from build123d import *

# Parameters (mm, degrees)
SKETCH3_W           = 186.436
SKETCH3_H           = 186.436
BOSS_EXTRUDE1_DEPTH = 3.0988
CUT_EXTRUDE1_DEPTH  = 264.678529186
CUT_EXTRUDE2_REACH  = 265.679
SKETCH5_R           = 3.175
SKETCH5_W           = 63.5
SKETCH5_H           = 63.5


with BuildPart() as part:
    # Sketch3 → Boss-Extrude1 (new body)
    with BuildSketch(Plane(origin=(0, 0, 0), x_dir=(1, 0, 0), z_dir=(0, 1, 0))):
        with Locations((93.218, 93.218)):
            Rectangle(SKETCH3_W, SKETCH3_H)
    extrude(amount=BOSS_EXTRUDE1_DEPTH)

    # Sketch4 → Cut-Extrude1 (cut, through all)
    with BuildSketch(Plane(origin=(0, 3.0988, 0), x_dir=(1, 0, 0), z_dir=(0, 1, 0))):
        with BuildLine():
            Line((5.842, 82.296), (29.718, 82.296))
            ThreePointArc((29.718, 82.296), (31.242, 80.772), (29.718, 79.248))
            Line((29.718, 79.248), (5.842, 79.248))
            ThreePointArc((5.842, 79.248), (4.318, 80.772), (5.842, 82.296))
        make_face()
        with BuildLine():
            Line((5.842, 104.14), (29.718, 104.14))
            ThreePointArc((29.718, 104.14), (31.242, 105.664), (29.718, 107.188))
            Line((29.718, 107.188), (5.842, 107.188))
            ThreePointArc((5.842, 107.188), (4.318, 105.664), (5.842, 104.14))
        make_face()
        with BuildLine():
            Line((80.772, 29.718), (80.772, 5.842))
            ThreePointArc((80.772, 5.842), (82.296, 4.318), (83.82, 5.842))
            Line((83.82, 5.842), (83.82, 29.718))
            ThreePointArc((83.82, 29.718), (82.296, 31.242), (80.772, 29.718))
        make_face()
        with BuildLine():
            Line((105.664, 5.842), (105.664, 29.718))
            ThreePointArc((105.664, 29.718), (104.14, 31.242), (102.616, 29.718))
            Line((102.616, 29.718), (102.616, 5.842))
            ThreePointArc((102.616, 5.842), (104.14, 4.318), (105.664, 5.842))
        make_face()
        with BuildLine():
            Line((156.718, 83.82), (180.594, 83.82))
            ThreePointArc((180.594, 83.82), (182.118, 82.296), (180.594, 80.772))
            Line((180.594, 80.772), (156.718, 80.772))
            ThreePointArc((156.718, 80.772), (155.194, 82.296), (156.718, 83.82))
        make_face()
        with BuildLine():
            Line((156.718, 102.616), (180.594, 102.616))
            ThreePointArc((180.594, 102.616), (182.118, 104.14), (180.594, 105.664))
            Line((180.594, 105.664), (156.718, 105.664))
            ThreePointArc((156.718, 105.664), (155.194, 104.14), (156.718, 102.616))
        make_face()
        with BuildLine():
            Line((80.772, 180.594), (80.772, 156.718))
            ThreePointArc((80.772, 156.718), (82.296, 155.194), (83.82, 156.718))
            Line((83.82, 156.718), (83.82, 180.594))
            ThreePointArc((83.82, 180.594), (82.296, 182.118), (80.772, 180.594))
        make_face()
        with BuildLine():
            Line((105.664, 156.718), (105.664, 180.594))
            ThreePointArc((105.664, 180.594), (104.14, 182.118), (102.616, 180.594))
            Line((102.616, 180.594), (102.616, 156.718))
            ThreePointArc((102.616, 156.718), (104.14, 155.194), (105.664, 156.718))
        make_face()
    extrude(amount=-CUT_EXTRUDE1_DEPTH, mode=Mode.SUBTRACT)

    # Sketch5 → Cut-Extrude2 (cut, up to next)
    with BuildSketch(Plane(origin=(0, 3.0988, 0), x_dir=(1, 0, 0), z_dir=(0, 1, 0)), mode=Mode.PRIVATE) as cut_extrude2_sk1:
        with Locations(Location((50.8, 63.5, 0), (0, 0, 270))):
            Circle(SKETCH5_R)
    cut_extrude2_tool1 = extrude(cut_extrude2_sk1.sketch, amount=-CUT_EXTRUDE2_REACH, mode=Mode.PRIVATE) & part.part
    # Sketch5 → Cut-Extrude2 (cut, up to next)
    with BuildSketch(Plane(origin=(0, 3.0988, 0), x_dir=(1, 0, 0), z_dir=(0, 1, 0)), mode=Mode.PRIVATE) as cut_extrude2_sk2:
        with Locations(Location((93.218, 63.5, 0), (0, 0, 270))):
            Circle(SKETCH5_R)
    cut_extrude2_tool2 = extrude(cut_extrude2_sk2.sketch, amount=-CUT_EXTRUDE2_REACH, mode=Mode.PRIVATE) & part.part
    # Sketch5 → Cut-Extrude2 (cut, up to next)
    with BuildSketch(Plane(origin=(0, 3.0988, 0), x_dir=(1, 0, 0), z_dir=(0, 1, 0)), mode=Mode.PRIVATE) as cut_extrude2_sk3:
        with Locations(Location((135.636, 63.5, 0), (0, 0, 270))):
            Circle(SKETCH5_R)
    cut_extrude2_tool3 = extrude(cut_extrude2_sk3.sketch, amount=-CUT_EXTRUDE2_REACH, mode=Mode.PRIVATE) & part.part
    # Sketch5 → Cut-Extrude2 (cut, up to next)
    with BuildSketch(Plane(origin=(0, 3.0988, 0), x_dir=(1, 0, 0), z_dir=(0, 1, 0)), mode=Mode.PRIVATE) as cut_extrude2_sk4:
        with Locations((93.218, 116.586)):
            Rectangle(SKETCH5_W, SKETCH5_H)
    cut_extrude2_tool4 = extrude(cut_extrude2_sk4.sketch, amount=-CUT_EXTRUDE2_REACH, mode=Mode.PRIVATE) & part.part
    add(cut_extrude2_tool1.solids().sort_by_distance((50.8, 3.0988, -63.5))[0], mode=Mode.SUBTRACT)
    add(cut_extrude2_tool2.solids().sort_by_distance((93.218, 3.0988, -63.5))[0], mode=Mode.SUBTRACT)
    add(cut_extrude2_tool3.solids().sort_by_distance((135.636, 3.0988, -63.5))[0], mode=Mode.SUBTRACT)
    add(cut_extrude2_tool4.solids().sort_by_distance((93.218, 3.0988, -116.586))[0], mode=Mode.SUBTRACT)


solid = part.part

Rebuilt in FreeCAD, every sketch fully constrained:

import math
import FreeCAD as App
import Part
import Sketcher
from FreeCAD import Vector
Q = App.Units.Quantity

doc = App.newDocument("Part")
body = doc.addObject("PartDesign::Body", "Body")

# Sketch on XZ plane
sketch1 = body.newObject("Sketcher::SketchObject", "Sketch")
sketch1.AttachmentSupport = (doc.getObject("XZ_Plane"), [""])
sketch1.MapMode = "FlatFace"
sketch1.addGeometry(Part.LineSegment(Vector(0, -186, 0), Vector(0, 0, 0)), False)
sketch1.addGeometry(Part.LineSegment(Vector(0, 0, 0), Vector(186, 0, 0)), False)
sketch1.addGeometry(Part.LineSegment(Vector(186, 0, 0), Vector(186, -186, 0)), False)
sketch1.addGeometry(Part.LineSegment(Vector(186, -186, 0), Vector(0, -186, 0)), False)
sketch1.addConstraint(Sketcher.Constraint("Coincident", 0, 2, 1, 1))
sketch1.addConstraint(Sketcher.Constraint("Coincident", 1, 2, 2, 1))
sketch1.addConstraint(Sketcher.Constraint("Coincident", 2, 2, 3, 1))
sketch1.addConstraint(Sketcher.Constraint("Coincident", 3, 2, 0, 1))
sketch1.addConstraint(Sketcher.Constraint("Vertical", 0))
sketch1.addConstraint(Sketcher.Constraint("Horizontal", 1))
sketch1.addConstraint(Sketcher.Constraint("Vertical", 2))
sketch1.addConstraint(Sketcher.Constraint("Horizontal", 3))
sketch1.addConstraint(Sketcher.Constraint("Coincident", 0, 2, -1, 1))
sketch1.addConstraint(Sketcher.Constraint("Equal", 3, 0))
sketch1.addConstraint(Sketcher.Constraint("DistanceX", 1, 1, 1, 2, Q("7.34 in")))
pad1 = body.newObject("PartDesign::Pad", "Pad")
pad1.Profile = sketch1
pad1.Length = Q("0.122 in")
pad1.Reversed = True

# Sketch on XZ plane
sketch2 = body.newObject("Sketcher::SketchObject", "Sketch001")
sketch2.AttachmentSupport = (doc.getObject("XZ_Plane"), [""])
sketch2.MapMode = "FlatFace"
sketch2.AttachmentOffset = App.Placement(Vector(0, 0, -0.122 * 25.4), App.Rotation())
sketch2.addGeometry(Part.LineSegment(Vector(29.7, -82.3, 0), Vector(5.8, -82.3, 0)), False)
sketch2.addGeometry(Part.ArcOfCircle(Part.Circle(Vector(5.8, -80.8, 0), Vector(0, 0, 1), 1.5), math.radians(90), math.radians(270)), False)
sketch2.addGeometry(Part.LineSegment(Vector(5.8, -79.2, 0), Vector(29.7, -79.2, 0)), False)
sketch2.addGeometry(Part.ArcOfCircle(Part.Circle(Vector(29.7, -80.8, 0), Vector(0, 0, 1), 1.5), math.radians(-90), math.radians(90)), False)
sketch2.addGeometry(Part.LineSegment(Vector(5.8, -104.1, 0), Vector(29.7, -104.1, 0)), False)
sketch2.addGeometry(Part.ArcOfCircle(Part.Circle(Vector(29.7, -105.7, 0), Vector(0, 0, 1), 1.5), math.radians(-90), math.radians(90)), False)
sketch2.addGeometry(Part.LineSegment(Vector(29.7, -107.2, 0), Vector(5.8, -107.2, 0)), False)
sketch2.addGeometry(Part.ArcOfCircle(Part.Circle(Vector(5.8, -105.7, 0), Vector(0, 0, 1), 1.5), math.radians(90), math.radians(270)), False)
sketch2.addGeometry(Part.LineSegment(Vector(80.8, -29.7, 0), Vector(80.8, -5.8, 0)), False)
sketch2.addGeometry(Part.ArcOfCircle(Part.Circle(Vector(82.3, -5.8, 0), Vector(0, 0, 1), 1.5), math.radians(0), math.radians(180)), False)
sketch2.addGeometry(Part.LineSegment(Vector(83.8, -5.8, 0), Vector(83.8, -29.7, 0)), False)
sketch2.addGeometry(Part.ArcOfCircle(Part.Circle(Vector(82.3, -29.7, 0), Vector(0, 0, 1), 1.5), math.radians(180), math.radians(360)), False)
sketch2.addGeometry(Part.LineSegment(Vector(105.7, -5.8, 0), Vector(105.7, -29.7, 0)), False)
sketch2.addGeometry(Part.ArcOfCircle(Part.Circle(Vector(104.1, -29.7, 0), Vector(0, 0, 1), 1.5), math.radians(180), math.radians(360)), False)
sketch2.addGeometry(Part.LineSegment(Vector(102.6, -29.7, 0), Vector(102.6, -5.8, 0)), False)
sketch2.addGeometry(Part.ArcOfCircle(Part.Circle(Vector(104.1, -5.8, 0), Vector(0, 0, 1), 1.5), math.radians(0), math.radians(180)), False)
sketch2.addGeometry(Part.LineSegment(Vector(180.6, -83.8, 0), Vector(156.7, -83.8, 0)), False)
sketch2.addGeometry(Part.ArcOfCircle(Part.Circle(Vector(156.7, -82.3, 0), Vector(0, 0, 1), 1.5), math.radians(90), math.radians(270)), False)
sketch2.addGeometry(Part.LineSegment(Vector(156.7, -80.8, 0), Vector(180.6, -80.8, 0)), False)
sketch2.addGeometry(Part.ArcOfCircle(Part.Circle(Vector(180.6, -82.3, 0), Vector(0, 0, 1), 1.5), math.radians(-90), math.radians(90)), False)
sketch2.addGeometry(Part.LineSegment(Vector(156.7, -102.6, 0), Vector(180.6, -102.6, 0)), False)
sketch2.addGeometry(Part.ArcOfCircle(Part.Circle(Vector(180.6, -104.1, 0), Vector(0, 0, 1), 1.5), math.radians(-90), math.radians(90)), False)
sketch2.addGeometry(Part.LineSegment(Vector(180.6, -105.7, 0), Vector(156.7, -105.7, 0)), False)
sketch2.addGeometry(Part.ArcOfCircle(Part.Circle(Vector(156.7, -104.1, 0), Vector(0, 0, 1), 1.5), math.radians(90), math.radians(270)), False)
sketch2.addGeometry(Part.LineSegment(Vector(80.8, -180.6, 0), Vector(80.8, -156.7, 0)), False)
sketch2.addGeometry(Part.ArcOfCircle(Part.Circle(Vector(82.3, -156.7, 0), Vector(0, 0, 1), 1.5), math.radians(0), math.radians(180)), False)
sketch2.addGeometry(Part.LineSegment(Vector(83.8, -156.7, 0), Vector(83.8, -180.6, 0)), False)
sketch2.addGeometry(Part.ArcOfCircle(Part.Circle(Vector(82.3, -180.6, 0), Vector(0, 0, 1), 1.5), math.radians(180), math.radians(360)), False)
sketch2.addGeometry(Part.LineSegment(Vector(105.7, -156.7, 0), Vector(105.7, -180.6, 0)), False)
sketch2.addGeometry(Part.ArcOfCircle(Part.Circle(Vector(104.1, -180.6, 0), Vector(0, 0, 1), 1.5), math.radians(180), math.radians(360)), False)
sketch2.addGeometry(Part.LineSegment(Vector(102.6, -180.6, 0), Vector(102.6, -156.7, 0)), False)
sketch2.addGeometry(Part.ArcOfCircle(Part.Circle(Vector(104.1, -156.7, 0), Vector(0, 0, 1), 1.5), math.radians(0), math.radians(180)), False)
sketch2.addConstraint(Sketcher.Constraint("Tangent", 0, 2, 1, 2))
sketch2.addConstraint(Sketcher.Constraint("Tangent", 1, 1, 2, 1))
sketch2.addConstraint(Sketcher.Constraint("Tangent", 2, 2, 3, 2))
sketch2.addConstraint(Sketcher.Constraint("Tangent", 3, 1, 0, 1))
sketch2.addConstraint(Sketcher.Constraint("Tangent", 4, 2, 5, 2))
sketch2.addConstraint(Sketcher.Constraint("Tangent", 5, 1, 6, 1))
sketch2.addConstraint(Sketcher.Constraint("Tangent", 6, 2, 7, 2))
sketch2.addConstraint(Sketcher.Constraint("Tangent", 7, 1, 4, 1))
sketch2.addConstraint(Sketcher.Constraint("Tangent", 8, 2, 9, 2))
sketch2.addConstraint(Sketcher.Constraint("Tangent", 9, 1, 10, 1))
sketch2.addConstraint(Sketcher.Constraint("Tangent", 10, 2, 11, 2))
sketch2.addConstraint(Sketcher.Constraint("Tangent", 11, 1, 8, 1))
sketch2.addConstraint(Sketcher.Constraint("Tangent", 12, 2, 13, 2))
sketch2.addConstraint(Sketcher.Constraint("Tangent", 13, 1, 14, 1))
sketch2.addConstraint(Sketcher.Constraint("Tangent", 14, 2, 15, 2))
sketch2.addConstraint(Sketcher.Constraint("Tangent", 15, 1, 12, 1))
sketch2.addConstraint(Sketcher.Constraint("Tangent", 16, 2, 17, 2))
sketch2.addConstraint(Sketcher.Constraint("Tangent", 17, 1, 18, 1))
sketch2.addConstraint(Sketcher.Constraint("Tangent", 18, 2, 19, 2))
sketch2.addConstraint(Sketcher.Constraint("Tangent", 19, 1, 16, 1))
sketch2.addConstraint(Sketcher.Constraint("Tangent", 20, 2, 21, 2))
sketch2.addConstraint(Sketcher.Constraint("Tangent", 21, 1, 22, 1))
sketch2.addConstraint(Sketcher.Constraint("Tangent", 22, 2, 23, 2))
sketch2.addConstraint(Sketcher.Constraint("Tangent", 23, 1, 20, 1))
sketch2.addConstraint(Sketcher.Constraint("Tangent", 24, 2, 25, 2))
sketch2.addConstraint(Sketcher.Constraint("Tangent", 25, 1, 26, 1))
sketch2.addConstraint(Sketcher.Constraint("Tangent", 26, 2, 27, 2))
sketch2.addConstraint(Sketcher.Constraint("Tangent", 27, 1, 24, 1))
sketch2.addConstraint(Sketcher.Constraint("Tangent", 28, 2, 29, 2))
sketch2.addConstraint(Sketcher.Constraint("Tangent", 29, 1, 30, 1))
sketch2.addConstraint(Sketcher.Constraint("Tangent", 30, 2, 31, 2))
sketch2.addConstraint(Sketcher.Constraint("Tangent", 31, 1, 28, 1))
sketch2.addConstraint(Sketcher.Constraint("Horizontal", 0))
sketch2.addConstraint(Sketcher.Constraint("Horizontal", 2))
sketch2.addConstraint(Sketcher.Constraint("Horizontal", 4))
sketch2.addConstraint(Sketcher.Constraint("Horizontal", 6))
sketch2.addConstraint(Sketcher.Constraint("Vertical", 8))
sketch2.addConstraint(Sketcher.Constraint("Vertical", 10))
sketch2.addConstraint(Sketcher.Constraint("Vertical", 12))
sketch2.addConstraint(Sketcher.Constraint("Vertical", 14))
sketch2.addConstraint(Sketcher.Constraint("Horizontal", 16))
sketch2.addConstraint(Sketcher.Constraint("Horizontal", 18))
sketch2.addConstraint(Sketcher.Constraint("Horizontal", 20))
sketch2.addConstraint(Sketcher.Constraint("Horizontal", 22))
sketch2.addConstraint(Sketcher.Constraint("Vertical", 24))
sketch2.addConstraint(Sketcher.Constraint("Vertical", 26))
sketch2.addConstraint(Sketcher.Constraint("Vertical", 28))
sketch2.addConstraint(Sketcher.Constraint("Vertical", 30))
sketch2.addConstraint(Sketcher.Constraint("Equal", 3, 5))
sketch2.addConstraint(Sketcher.Constraint("Equal", 7, 9))
sketch2.addConstraint(Sketcher.Constraint("Equal", 11, 13))
sketch2.addConstraint(Sketcher.Constraint("Equal", 15, 17))
sketch2.addConstraint(Sketcher.Constraint("Equal", 19, 21))
sketch2.addConstraint(Sketcher.Constraint("Equal", 23, 25))
sketch2.addConstraint(Sketcher.Constraint("Equal", 27, 29))
sketch2.addConstraint(Sketcher.Constraint("Horizontal", 11, 3, 13, 3))
sketch2.addConstraint(Sketcher.Constraint("Horizontal", 9, 3, 15, 3))
sketch2.addConstraint(Sketcher.Constraint("Horizontal", 27, 3, 29, 3))
sketch2.addConstraint(Sketcher.Constraint("Horizontal", 25, 3, 31, 3))
sketch2.addConstraint(Sketcher.Constraint("Horizontal", 19, 3, 0, 2))
sketch2.addConstraint(Sketcher.Constraint("Horizontal", 23, 3, 4, 2))
sketch2.addConstraint(Sketcher.Constraint("Vertical", 3, 3, 5, 3))
sketch2.addConstraint(Sketcher.Constraint("Vertical", 1, 3, 7, 3))
sketch2.addConstraint(Sketcher.Constraint("Vertical", 19, 3, 21, 3))
sketch2.addConstraint(Sketcher.Constraint("Vertical", 17, 3, 23, 3))
sketch2.addConstraint(Sketcher.Constraint("Vertical", 11, 3, 25, 3))
sketch2.addConstraint(Sketcher.Constraint("Vertical", 15, 3, 29, 3))
sketch2.addConstraint(Sketcher.Constraint("Equal", 6, 16))
sketch2.addConstraint(Sketcher.Constraint("Equal", 22, 8))
sketch2.addConstraint(Sketcher.Constraint("Equal", 14, 24))
sketch2.addConstraint(Sketcher.Constraint("Radius", 1, Q("0.06 in")))
sketch2.addConstraint(Sketcher.Constraint("DistanceX", 3, 3, 17, 3, Q("5 in")))
sketch2.addConstraint(Sketcher.Constraint("DistanceX", 0, 2, 0, 1, Q("0.94 in")))
sketch2.addConstraint(Sketcher.Constraint("DistanceX", -1, 1, 13, 3, Q("4.1 in")))
sketch2.addConstraint(Sketcher.Constraint("DistanceY", 21, 3, -1, 1, Q("4.1 in")))
sketch2.addConstraint(Sketcher.Constraint("DistanceX", -1, 1, 9, 1, Q("3.3 in")))
sketch2.addConstraint(Sketcher.Constraint("DistanceY", 16, 2, -1, 1, Q("3.3 in")))
sketch2.addConstraint(Sketcher.Constraint("DistanceX", -1, 1, 1, 3, Q("0.23 in")))
sketch2.addConstraint(Sketcher.Constraint("DistanceY", 9, 3, -1, 1, Q("0.23 in")))
sketch2.addConstraint(Sketcher.Constraint("DistanceY", 25, 3, -1, 1, Q("6.17 in")))
pocket1 = body.newObject("PartDesign::Pocket", "Pocket")
pocket1.Profile = sketch2
pocket1.Type = "ThroughAll"
pocket1.Reversed = True

# Sketch on XZ plane
sketch3 = body.newObject("Sketcher::SketchObject", "Sketch002")
sketch3.AttachmentSupport = (doc.getObject("XZ_Plane"), [""])
sketch3.MapMode = "FlatFace"
sketch3.AttachmentOffset = App.Placement(Vector(0, 0, -0.122 * 25.4), App.Rotation())
sketch3.addGeometry(Part.Circle(Vector(50.8, -63.5, 0), Vector(0, 0, 1), 3.2), False)
sketch3.addConstraint(Sketcher.Constraint("Diameter", 0, Q("0.25 in")))
sketch3.addConstraint(Sketcher.Constraint("DistanceX", -1, 1, 0, 3, Q("2 in")))
sketch3.addConstraint(Sketcher.Constraint("DistanceY", 0, 3, -1, 1, Q("2.5 in")))
pocket2 = body.newObject("PartDesign::Pocket", "Pocket001")
pocket2.Profile = sketch3
pocket2.Type = "UpToFirst"
pocket2.Reversed = True

# Sketch on XZ plane
sketch4 = body.newObject("Sketcher::SketchObject", "Sketch003")
sketch4.AttachmentSupport = (doc.getObject("XZ_Plane"), [""])
sketch4.MapMode = "FlatFace"
sketch4.AttachmentOffset = App.Placement(Vector(0, 0, -0.122 * 25.4), App.Rotation())
sketch4.addGeometry(Part.Circle(Vector(93.2, -63.5, 0), Vector(0, 0, 1), 3.2), False)
sketch4.addConstraint(Sketcher.Constraint("Diameter", 0, Q("0.25 in")))
sketch4.addConstraint(Sketcher.Constraint("DistanceY", 0, 3, -1, 1, Q("2.5 in")))
sketch4.addConstraint(Sketcher.Constraint("DistanceX", -1, 1, 0, 3, Q("3.67 in")))
pocket3 = body.newObject("PartDesign::Pocket", "Pocket002")
pocket3.Profile = sketch4
pocket3.Type = "UpToFirst"
pocket3.Reversed = True

# Sketch on XZ plane
sketch5 = body.newObject("Sketcher::SketchObject", "Sketch004")
sketch5.AttachmentSupport = (doc.getObject("XZ_Plane"), [""])
sketch5.MapMode = "FlatFace"
sketch5.AttachmentOffset = App.Placement(Vector(0, 0, -0.122 * 25.4), App.Rotation())
sketch5.addGeometry(Part.Circle(Vector(135.6, -63.5, 0), Vector(0, 0, 1), 3.2), False)
sketch5.addConstraint(Sketcher.Constraint("Diameter", 0, Q("0.25 in")))
sketch5.addConstraint(Sketcher.Constraint("DistanceY", 0, 3, -1, 1, Q("2.5 in")))
sketch5.addConstraint(Sketcher.Constraint("DistanceX", -1, 1, 0, 3, Q("5.34 in")))
pocket4 = body.newObject("PartDesign::Pocket", "Pocket003")
pocket4.Profile = sketch5
pocket4.Type = "UpToFirst"
pocket4.Reversed = True

# Sketch on XZ plane
sketch6 = body.newObject("Sketcher::SketchObject", "Sketch005")
sketch6.AttachmentSupport = (doc.getObject("XZ_Plane"), [""])
sketch6.MapMode = "FlatFace"
sketch6.AttachmentOffset = App.Placement(Vector(0, 0, -0.122 * 25.4), App.Rotation())
sketch6.addGeometry(Part.LineSegment(Vector(61, -148, 0), Vector(61, -85, 0)), False)
sketch6.addGeometry(Part.LineSegment(Vector(61, -85, 0), Vector(125, -85, 0)), False)
sketch6.addGeometry(Part.LineSegment(Vector(125, -85, 0), Vector(125, -148, 0)), False)
sketch6.addGeometry(Part.LineSegment(Vector(125, -148, 0), Vector(61, -148, 0)), False)
sketch6.addConstraint(Sketcher.Constraint("Coincident", 0, 2, 1, 1))
sketch6.addConstraint(Sketcher.Constraint("Coincident", 1, 2, 2, 1))
sketch6.addConstraint(Sketcher.Constraint("Coincident", 2, 2, 3, 1))
sketch6.addConstraint(Sketcher.Constraint("Coincident", 3, 2, 0, 1))
sketch6.addConstraint(Sketcher.Constraint("Vertical", 0))
sketch6.addConstraint(Sketcher.Constraint("Horizontal", 1))
sketch6.addConstraint(Sketcher.Constraint("Vertical", 2))
sketch6.addConstraint(Sketcher.Constraint("Horizontal", 3))
sketch6.addConstraint(Sketcher.Constraint("Equal", 3, 0))
sketch6.addConstraint(Sketcher.Constraint("DistanceX", 1, 1, 1, 2, Q("2.5 in")))
sketch6.addConstraint(Sketcher.Constraint("DistanceX", -1, 1, 0, 2, Q("2.42 in")))
sketch6.addConstraint(Sketcher.Constraint("DistanceY", 0, 2, -1, 1, Q("3.34 in")))
pocket5 = body.newObject("PartDesign::Pocket", "Pocket004")
pocket5.Profile = sketch6
pocket5.Type = "UpToFirst"
pocket5.Reversed = True

doc.recompute()
